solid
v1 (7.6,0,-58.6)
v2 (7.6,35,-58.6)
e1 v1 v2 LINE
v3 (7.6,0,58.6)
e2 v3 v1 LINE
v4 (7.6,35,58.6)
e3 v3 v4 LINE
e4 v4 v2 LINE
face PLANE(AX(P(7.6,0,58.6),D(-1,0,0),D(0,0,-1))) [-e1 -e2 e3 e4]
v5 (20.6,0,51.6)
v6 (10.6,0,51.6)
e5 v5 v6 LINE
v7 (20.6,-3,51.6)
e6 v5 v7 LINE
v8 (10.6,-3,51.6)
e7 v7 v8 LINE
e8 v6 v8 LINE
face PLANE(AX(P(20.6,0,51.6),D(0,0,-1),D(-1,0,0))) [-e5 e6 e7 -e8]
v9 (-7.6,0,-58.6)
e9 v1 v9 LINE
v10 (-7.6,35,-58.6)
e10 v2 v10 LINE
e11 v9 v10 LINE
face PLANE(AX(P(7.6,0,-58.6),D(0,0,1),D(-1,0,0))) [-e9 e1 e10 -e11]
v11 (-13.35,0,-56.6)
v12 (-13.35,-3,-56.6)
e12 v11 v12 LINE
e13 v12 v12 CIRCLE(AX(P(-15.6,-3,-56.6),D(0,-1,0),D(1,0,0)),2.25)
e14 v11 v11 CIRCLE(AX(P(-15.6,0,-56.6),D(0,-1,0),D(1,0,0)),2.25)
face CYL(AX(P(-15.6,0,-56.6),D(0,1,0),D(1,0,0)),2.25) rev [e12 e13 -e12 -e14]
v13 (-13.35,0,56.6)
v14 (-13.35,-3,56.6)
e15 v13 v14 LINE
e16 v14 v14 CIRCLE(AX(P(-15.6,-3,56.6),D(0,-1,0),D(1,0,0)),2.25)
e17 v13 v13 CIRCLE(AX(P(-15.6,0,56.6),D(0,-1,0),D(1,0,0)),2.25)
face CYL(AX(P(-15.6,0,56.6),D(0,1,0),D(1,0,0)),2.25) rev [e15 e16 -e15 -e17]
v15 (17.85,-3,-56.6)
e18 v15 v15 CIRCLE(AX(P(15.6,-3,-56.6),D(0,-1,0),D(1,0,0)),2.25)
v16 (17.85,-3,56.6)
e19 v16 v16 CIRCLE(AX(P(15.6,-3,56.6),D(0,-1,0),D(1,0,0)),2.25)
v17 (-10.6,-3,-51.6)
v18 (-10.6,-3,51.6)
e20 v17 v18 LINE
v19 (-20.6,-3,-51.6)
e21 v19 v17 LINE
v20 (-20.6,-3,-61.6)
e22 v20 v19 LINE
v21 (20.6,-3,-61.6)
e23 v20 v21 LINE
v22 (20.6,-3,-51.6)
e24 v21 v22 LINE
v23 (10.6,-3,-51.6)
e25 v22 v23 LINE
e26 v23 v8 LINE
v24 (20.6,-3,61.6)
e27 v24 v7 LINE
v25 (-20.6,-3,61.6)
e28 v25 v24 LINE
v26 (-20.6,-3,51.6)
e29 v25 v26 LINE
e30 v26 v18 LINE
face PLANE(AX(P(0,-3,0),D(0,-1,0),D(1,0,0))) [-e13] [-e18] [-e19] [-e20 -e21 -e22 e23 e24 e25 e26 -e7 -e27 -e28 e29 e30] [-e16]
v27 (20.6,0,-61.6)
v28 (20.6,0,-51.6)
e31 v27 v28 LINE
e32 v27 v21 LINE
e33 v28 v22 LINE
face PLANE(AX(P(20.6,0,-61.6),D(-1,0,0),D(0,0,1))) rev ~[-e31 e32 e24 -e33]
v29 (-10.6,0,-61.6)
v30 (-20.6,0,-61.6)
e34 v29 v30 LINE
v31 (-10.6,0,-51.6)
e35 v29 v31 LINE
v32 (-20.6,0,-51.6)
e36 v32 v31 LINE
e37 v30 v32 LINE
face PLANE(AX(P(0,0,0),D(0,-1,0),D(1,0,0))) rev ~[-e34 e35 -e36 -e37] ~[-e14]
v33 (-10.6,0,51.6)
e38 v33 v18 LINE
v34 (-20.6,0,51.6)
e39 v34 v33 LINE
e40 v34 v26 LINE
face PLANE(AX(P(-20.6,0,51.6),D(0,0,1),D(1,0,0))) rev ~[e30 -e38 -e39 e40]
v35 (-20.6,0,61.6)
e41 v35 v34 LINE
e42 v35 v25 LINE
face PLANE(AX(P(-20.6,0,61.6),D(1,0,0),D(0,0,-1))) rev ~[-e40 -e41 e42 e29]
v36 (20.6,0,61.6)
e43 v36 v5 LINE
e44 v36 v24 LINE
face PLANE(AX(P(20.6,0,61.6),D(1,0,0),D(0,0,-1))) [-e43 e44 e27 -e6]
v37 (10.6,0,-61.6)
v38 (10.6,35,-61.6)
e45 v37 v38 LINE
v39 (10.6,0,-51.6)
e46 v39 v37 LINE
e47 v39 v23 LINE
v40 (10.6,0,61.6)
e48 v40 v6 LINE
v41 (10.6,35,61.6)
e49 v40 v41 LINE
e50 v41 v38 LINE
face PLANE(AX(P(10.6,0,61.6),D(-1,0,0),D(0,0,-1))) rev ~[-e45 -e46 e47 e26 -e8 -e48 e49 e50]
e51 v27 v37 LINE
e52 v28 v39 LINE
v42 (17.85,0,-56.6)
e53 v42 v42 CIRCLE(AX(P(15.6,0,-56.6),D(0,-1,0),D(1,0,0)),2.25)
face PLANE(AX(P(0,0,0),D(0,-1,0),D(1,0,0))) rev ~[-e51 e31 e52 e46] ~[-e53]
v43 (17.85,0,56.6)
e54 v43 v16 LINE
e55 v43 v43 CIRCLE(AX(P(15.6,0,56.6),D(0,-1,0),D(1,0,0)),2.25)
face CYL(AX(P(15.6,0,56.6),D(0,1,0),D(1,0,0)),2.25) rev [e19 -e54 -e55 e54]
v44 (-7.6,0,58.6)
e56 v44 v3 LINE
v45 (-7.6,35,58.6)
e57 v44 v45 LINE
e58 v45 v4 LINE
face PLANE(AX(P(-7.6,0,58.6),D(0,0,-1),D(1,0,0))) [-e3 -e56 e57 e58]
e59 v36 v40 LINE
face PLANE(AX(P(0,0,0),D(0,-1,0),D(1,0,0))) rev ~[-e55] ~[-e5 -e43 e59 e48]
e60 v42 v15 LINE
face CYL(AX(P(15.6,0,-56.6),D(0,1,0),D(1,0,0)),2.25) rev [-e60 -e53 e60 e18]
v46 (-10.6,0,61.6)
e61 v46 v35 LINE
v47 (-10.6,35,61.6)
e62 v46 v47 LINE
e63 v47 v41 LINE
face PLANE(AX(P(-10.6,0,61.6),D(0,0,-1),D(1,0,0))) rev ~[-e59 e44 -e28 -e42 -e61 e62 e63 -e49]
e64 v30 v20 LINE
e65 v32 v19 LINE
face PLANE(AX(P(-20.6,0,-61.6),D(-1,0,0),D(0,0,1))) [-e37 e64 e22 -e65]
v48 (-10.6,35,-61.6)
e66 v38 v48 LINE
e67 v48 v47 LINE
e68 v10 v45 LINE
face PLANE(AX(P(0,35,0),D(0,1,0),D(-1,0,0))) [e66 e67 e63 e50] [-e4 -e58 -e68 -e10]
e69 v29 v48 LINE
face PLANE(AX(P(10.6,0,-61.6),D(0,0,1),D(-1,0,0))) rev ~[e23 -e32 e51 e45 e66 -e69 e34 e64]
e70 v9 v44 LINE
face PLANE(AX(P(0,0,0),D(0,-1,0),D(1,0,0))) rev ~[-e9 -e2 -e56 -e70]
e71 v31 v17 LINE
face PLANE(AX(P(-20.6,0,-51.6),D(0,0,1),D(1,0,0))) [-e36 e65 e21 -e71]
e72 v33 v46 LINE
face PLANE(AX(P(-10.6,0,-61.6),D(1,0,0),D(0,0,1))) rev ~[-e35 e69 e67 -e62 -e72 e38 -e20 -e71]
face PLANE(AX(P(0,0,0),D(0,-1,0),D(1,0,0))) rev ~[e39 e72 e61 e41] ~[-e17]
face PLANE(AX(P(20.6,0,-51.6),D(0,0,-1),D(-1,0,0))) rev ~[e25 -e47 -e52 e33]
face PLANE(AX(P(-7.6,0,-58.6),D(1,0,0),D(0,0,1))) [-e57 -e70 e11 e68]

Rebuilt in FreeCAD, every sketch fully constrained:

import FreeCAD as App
import Part
import Sketcher
from FreeCAD import Vector
Q = App.Units.Quantity

doc = App.newDocument("Part")
params = doc.addObject("Spreadsheet::Sheet", "Params")
for row, (alias, value) in enumerate([
    ("sketch1_width", "15.2 mm"),
    ("sketch1_height", "117.2 mm"),
    ("pad1_length", "35 mm"),
    ("sketch2_diameter", "4.5 mm"),
    ("sketch2_width", "41.2 mm"),
    ("sketch2_height", "103.2 mm"),
    ("pad2_length", "3 mm"),
], start=1):
    params.set(f"A{row}", alias)
    params.set(f"B{row}", "=" + value)
    params.setAlias(f"B{row}", alias)

body = doc.addObject("PartDesign::Body", "Body")

# Sketch on XZ plane
sketch1 = body.newObject("Sketcher::SketchObject", "Sketch")
sketch1.AttachmentSupport = (doc.getObject("XZ_Plane"), [""])
sketch1.MapMode = "FlatFace"
sketch1.addGeometry(Part.LineSegment(Vector(-11, -62, 0), Vector(-11, 62, 0)), False)
sketch1.addGeometry(Part.LineSegment(Vector(-11, 62, 0), Vector(11, 62, 0)), False)
sketch1.addGeometry(Part.LineSegment(Vector(11, 62, 0), Vector(11, -62, 0)), False)
sketch1.addGeometry(Part.LineSegment(Vector(11, -62, 0), Vector(-11, -62, 0)), False)
sketch1.addGeometry(Part.LineSegment(Vector(8, 59, 0), Vector(-8, 59, 0)), False)
sketch1.addGeometry(Part.LineSegment(Vector(-8, 59, 0), Vector(-8, -59, 0)), False)
sketch1.addGeometry(Part.LineSegment(Vector(-8, -59, 0), Vector(8, -59, 0)), False)
sketch1.addGeometry(Part.LineSegment(Vector(8, -59, 0), Vector(8, 59, 0)), False)
sketch1.addConstraint(Sketcher.Constraint("Coincident", 0, 2, 1, 1))
sketch1.addConstraint(Sketcher.Constraint("Coincident", 1, 2, 2, 1))
sketch1.addConstraint(Sketcher.Constraint("Coincident", 2, 2, 3, 1))
sketch1.addConstraint(Sketcher.Constraint("Coincident", 3, 2, 0, 1))
sketch1.addConstraint(Sketcher.Constraint("Coincident", 4, 2, 5, 1))
sketch1.addConstraint(Sketcher.Constraint("Coincident", 5, 2, 6, 1))
sketch1.addConstraint(Sketcher.Constraint("Coincident", 6, 2, 7, 1))
sketch1.addConstraint(Sketcher.Constraint("Coincident", 7, 2, 4, 1))
sketch1.addConstraint(Sketcher.Constraint("Vertical", 0))
sketch1.addConstraint(Sketcher.Constraint("Horizontal", 1))
sketch1.addConstraint(Sketcher.Constraint("Vertical", 2))
sketch1.addConstraint(Sketcher.Constraint("Horizontal", 3))
sketch1.addConstraint(Sketcher.Constraint("Horizontal", 4))
sketch1.addConstraint(Sketcher.Constraint("Vertical", 5))
sketch1.addConstraint(Sketcher.Constraint("Horizontal", 6))
sketch1.addConstraint(Sketcher.Constraint("Vertical", 7))
sketch1.addConstraint(Sketcher.Constraint("Symmetric", 0, 2, 2, 2, -1, 1))
sketch1.addConstraint(Sketcher.Constraint("Symmetric", 4, 2, 6, 2, -1, 1))
sketch1.addConstraint(Sketcher.Constraint("DistanceX", 4, 2, 4, 1, Q("15.2 mm")))
sketch1.addConstraint(Sketcher.Constraint("DistanceY", 5, 2, 5, 1, Q("117.2 mm")))
sketch1.addConstraint(Sketcher.Constraint("DistanceX", 0, 2, 4, 2, Q("3 mm")))
sketch1.addConstraint(Sketcher.Constraint("DistanceY", 4, 2, 0, 2, Q("3 mm")))
sketch1.setExpression("Constraints[18]", "Params.sketch1_width")
sketch1.setExpression("Constraints[19]", "Params.sketch1_height")
pad1 = body.newObject("PartDesign::Pad", "Pad")
pad1.Profile = sketch1
pad1.setExpression("Length", "Params.pad1_length")
pad1.Reversed = True

# Sketch on XZ plane
sketch2 = body.newObject("Sketcher::SketchObject", "Sketch001")
sketch2.AttachmentSupport = (doc.getObject("XZ_Plane"), [""])
sketch2.MapMode = "FlatFace"
sketch2.addGeometry(Part.LineSegment(Vector(20.6, 61.6, 0), Vector(-20.6, 61.6, 0)), False)
sketch2.addGeometry(Part.LineSegment(Vector(-20.6, 61.6, 0), Vector(-20.6, 51.6, 0)), False)
sketch2.addGeometry(Part.LineSegment(Vector(-20.6, 51.6, 0), Vector(-10.6, 51.6, 0)), False)
sketch2.addGeometry(Part.LineSegment(Vector(-10.6, 51.6, 0), Vector(-10.6, -51.6, 0)), False)
sketch2.addGeometry(Part.LineSegment(Vector(-10.6, -51.6, 0), Vector(-20.6, -51.6, 0)), False)
sketch2.addGeometry(Part.LineSegment(Vector(-20.6, -51.6, 0), Vector(-20.6, -61.6, 0)), False)
sketch2.addGeometry(Part.LineSegment(Vector(-20.6, -61.6, 0), Vector(20.6, -61.6, 0)), False)
sketch2.addGeometry(Part.LineSegment(Vector(20.6, -61.6, 0), Vector(20.6, -51.6, 0)), False)
sketch2.addGeometry(Part.LineSegment(Vector(20.6, -51.6, 0), Vector(10.6, -51.6, 0)), False)
sketch2.addGeometry(Part.LineSegment(Vector(10.6, -51.6, 0), Vector(10.6, 51.6, 0)), False)
sketch2.addGeometry(Part.LineSegment(Vector(10.6, 51.6, 0), Vector(20.6, 51.6, 0)), False)
sketch2.addGeometry(Part.LineSegment(Vector(20.6, 51.6, 0), Vector(20.6, 61.6, 0)), False)
sketch2.addGeometry(Part.Circle(Vector(15.6, 56.6, 0), Vector(0, 0, 1), 2.2), False)
sketch2.addGeometry(Part.Circle(Vector(15.6, -56.6, 0), Vector(0, 0, 1), 2.2), False)
sketch2.addGeometry(Part.Circle(Vector(-15.6, -56.6, 0), Vector(0, 0, 1), 2.2), False)
sketch2.addGeometry(Part.Circle(Vector(-15.6, 56.6, 0), Vector(0, 0, 1), 2.2), False)
sketch2.addConstraint(Sketcher.Constraint("Coincident", 0, 2, 1, 1))
sketch2.addConstraint(Sketcher.Constraint("Coincident", 1, 2, 2, 1))
sketch2.addConstraint(Sketcher.Constraint("Coincident", 2, 2, 3, 1))
sketch2.addConstraint(Sketcher.Constraint("Coincident", 3, 2, 4, 1))
sketch2.addConstraint(Sketcher.Constraint("Coincident", 4, 2, 5, 1))
sketch2.addConstraint(Sketcher.Constraint("Coincident", 5, 2, 6, 1))
sketch2.addConstraint(Sketcher.Constraint("Coincident", 6, 2, 7, 1))
sketch2.addConstraint(Sketcher.Constraint("Coincident", 7, 2, 8, 1))
sketch2.addConstraint(Sketcher.Constraint("Coincident", 8, 2, 9, 1))
sketch2.addConstraint(Sketcher.Constraint("Coincident", 9, 2, 10, 1))
sketch2.addConstraint(Sketcher.Constraint("Coincident", 10, 2, 11, 1))
sketch2.addConstraint(Sketcher.Constraint("Coincident", 11, 2, 0, 1))
sketch2.addConstraint(Sketcher.Constraint("Horizontal", 0))
sketch2.addConstraint(Sketcher.Constraint("Vertical", 1))
sketch2.addConstraint(Sketcher.Constraint("Horizontal", 2))
sketch2.addConstraint(Sketcher.Constraint("Vertical", 3))
sketch2.addConstraint(Sketcher.Constraint("Horizontal", 4))
sketch2.addConstraint(Sketcher.Constraint("Vertical", 5))
sketch2.addConstraint(Sketcher.Constraint("Horizontal", 6))
sketch2.addConstraint(Sketcher.Constraint("Vertical", 7))
sketch2.addConstraint(Sketcher.Constraint("Horizontal", 8))
sketch2.addConstraint(Sketcher.Constraint("Vertical", 9))
sketch2.addConstraint(Sketcher.Constraint("Horizontal", 10))
sketch2.addConstraint(Sketcher.Constraint("Vertical", 11))
sketch2.addConstraint(Sketcher.Constraint("Equal", 12, 13))
sketch2.addConstraint(Sketcher.Constraint("Equal", 13, 14))
sketch2.addConstraint(Sketcher.Constraint("Equal", 14, 15))
sketch2.addConstraint(Sketcher.Constraint("Symmetric", 12, 3, 14, 3, -1, 1))
sketch2.addConstraint(Sketcher.Constraint("Symmetric", 13, 3, 15, 3, -1, 1))
sketch2.addConstraint(Sketcher.Constraint("Symmetric", 0, 2, 6, 2, -1, 1))
sketch2.addConstraint(Sketcher.Constraint("Symmetric", 2, 2, 8, 2, -1, 1))
sketch2.addConstraint(Sketcher.Constraint("Symmetric", 4, 2, 10, 2, -1, 1))
sketch2.addConstraint(Sketcher.Constraint("Symmetric", 13, 3, 14, 3, -2))
sketch2.addConstraint(Sketcher.Constraint("Symmetric", 4, 2, 7, 2, -2))
sketch2.addConstraint(Sketcher.Constraint("Equal", 10, 1))
sketch2.addConstraint(Sketcher.Constraint("Diameter", 12, Q("4.5 mm")))
sketch2.addConstraint(Sketcher.Constraint("DistanceX", 0, 2, 15, 3, Q("5 mm")))
sketch2.addConstraint(Sketcher.Constraint("DistanceY", 15, 3, 0, 2, Q("5 mm")))
sketch2.addConstraint(Sketcher.Constraint("DistanceY", 1, 2, 15, 3, Q("5 mm")))
sketch2.addConstraint(Sketcher.Constraint("DistanceX", 0, 2, 0, 1, Q("41.2 mm")))
sketch2.addConstraint(Sketcher.Constraint("DistanceY", 3, 2, 3, 1, Q("103.2 mm")))
sketch2.setExpression("Constraints[35]", "Params.sketch2_diameter")
sketch2.setExpression("Constraints[39]", "Params.sketch2_width")
sketch2.setExpression("Constraints[40]", "Params.sketch2_height")
pad2 = body.newObject("PartDesign::Pad", "Pad001")
pad2.Profile = sketch2
pad2.setExpression("Length", "Params.pad2_length")

doc.recompute()
